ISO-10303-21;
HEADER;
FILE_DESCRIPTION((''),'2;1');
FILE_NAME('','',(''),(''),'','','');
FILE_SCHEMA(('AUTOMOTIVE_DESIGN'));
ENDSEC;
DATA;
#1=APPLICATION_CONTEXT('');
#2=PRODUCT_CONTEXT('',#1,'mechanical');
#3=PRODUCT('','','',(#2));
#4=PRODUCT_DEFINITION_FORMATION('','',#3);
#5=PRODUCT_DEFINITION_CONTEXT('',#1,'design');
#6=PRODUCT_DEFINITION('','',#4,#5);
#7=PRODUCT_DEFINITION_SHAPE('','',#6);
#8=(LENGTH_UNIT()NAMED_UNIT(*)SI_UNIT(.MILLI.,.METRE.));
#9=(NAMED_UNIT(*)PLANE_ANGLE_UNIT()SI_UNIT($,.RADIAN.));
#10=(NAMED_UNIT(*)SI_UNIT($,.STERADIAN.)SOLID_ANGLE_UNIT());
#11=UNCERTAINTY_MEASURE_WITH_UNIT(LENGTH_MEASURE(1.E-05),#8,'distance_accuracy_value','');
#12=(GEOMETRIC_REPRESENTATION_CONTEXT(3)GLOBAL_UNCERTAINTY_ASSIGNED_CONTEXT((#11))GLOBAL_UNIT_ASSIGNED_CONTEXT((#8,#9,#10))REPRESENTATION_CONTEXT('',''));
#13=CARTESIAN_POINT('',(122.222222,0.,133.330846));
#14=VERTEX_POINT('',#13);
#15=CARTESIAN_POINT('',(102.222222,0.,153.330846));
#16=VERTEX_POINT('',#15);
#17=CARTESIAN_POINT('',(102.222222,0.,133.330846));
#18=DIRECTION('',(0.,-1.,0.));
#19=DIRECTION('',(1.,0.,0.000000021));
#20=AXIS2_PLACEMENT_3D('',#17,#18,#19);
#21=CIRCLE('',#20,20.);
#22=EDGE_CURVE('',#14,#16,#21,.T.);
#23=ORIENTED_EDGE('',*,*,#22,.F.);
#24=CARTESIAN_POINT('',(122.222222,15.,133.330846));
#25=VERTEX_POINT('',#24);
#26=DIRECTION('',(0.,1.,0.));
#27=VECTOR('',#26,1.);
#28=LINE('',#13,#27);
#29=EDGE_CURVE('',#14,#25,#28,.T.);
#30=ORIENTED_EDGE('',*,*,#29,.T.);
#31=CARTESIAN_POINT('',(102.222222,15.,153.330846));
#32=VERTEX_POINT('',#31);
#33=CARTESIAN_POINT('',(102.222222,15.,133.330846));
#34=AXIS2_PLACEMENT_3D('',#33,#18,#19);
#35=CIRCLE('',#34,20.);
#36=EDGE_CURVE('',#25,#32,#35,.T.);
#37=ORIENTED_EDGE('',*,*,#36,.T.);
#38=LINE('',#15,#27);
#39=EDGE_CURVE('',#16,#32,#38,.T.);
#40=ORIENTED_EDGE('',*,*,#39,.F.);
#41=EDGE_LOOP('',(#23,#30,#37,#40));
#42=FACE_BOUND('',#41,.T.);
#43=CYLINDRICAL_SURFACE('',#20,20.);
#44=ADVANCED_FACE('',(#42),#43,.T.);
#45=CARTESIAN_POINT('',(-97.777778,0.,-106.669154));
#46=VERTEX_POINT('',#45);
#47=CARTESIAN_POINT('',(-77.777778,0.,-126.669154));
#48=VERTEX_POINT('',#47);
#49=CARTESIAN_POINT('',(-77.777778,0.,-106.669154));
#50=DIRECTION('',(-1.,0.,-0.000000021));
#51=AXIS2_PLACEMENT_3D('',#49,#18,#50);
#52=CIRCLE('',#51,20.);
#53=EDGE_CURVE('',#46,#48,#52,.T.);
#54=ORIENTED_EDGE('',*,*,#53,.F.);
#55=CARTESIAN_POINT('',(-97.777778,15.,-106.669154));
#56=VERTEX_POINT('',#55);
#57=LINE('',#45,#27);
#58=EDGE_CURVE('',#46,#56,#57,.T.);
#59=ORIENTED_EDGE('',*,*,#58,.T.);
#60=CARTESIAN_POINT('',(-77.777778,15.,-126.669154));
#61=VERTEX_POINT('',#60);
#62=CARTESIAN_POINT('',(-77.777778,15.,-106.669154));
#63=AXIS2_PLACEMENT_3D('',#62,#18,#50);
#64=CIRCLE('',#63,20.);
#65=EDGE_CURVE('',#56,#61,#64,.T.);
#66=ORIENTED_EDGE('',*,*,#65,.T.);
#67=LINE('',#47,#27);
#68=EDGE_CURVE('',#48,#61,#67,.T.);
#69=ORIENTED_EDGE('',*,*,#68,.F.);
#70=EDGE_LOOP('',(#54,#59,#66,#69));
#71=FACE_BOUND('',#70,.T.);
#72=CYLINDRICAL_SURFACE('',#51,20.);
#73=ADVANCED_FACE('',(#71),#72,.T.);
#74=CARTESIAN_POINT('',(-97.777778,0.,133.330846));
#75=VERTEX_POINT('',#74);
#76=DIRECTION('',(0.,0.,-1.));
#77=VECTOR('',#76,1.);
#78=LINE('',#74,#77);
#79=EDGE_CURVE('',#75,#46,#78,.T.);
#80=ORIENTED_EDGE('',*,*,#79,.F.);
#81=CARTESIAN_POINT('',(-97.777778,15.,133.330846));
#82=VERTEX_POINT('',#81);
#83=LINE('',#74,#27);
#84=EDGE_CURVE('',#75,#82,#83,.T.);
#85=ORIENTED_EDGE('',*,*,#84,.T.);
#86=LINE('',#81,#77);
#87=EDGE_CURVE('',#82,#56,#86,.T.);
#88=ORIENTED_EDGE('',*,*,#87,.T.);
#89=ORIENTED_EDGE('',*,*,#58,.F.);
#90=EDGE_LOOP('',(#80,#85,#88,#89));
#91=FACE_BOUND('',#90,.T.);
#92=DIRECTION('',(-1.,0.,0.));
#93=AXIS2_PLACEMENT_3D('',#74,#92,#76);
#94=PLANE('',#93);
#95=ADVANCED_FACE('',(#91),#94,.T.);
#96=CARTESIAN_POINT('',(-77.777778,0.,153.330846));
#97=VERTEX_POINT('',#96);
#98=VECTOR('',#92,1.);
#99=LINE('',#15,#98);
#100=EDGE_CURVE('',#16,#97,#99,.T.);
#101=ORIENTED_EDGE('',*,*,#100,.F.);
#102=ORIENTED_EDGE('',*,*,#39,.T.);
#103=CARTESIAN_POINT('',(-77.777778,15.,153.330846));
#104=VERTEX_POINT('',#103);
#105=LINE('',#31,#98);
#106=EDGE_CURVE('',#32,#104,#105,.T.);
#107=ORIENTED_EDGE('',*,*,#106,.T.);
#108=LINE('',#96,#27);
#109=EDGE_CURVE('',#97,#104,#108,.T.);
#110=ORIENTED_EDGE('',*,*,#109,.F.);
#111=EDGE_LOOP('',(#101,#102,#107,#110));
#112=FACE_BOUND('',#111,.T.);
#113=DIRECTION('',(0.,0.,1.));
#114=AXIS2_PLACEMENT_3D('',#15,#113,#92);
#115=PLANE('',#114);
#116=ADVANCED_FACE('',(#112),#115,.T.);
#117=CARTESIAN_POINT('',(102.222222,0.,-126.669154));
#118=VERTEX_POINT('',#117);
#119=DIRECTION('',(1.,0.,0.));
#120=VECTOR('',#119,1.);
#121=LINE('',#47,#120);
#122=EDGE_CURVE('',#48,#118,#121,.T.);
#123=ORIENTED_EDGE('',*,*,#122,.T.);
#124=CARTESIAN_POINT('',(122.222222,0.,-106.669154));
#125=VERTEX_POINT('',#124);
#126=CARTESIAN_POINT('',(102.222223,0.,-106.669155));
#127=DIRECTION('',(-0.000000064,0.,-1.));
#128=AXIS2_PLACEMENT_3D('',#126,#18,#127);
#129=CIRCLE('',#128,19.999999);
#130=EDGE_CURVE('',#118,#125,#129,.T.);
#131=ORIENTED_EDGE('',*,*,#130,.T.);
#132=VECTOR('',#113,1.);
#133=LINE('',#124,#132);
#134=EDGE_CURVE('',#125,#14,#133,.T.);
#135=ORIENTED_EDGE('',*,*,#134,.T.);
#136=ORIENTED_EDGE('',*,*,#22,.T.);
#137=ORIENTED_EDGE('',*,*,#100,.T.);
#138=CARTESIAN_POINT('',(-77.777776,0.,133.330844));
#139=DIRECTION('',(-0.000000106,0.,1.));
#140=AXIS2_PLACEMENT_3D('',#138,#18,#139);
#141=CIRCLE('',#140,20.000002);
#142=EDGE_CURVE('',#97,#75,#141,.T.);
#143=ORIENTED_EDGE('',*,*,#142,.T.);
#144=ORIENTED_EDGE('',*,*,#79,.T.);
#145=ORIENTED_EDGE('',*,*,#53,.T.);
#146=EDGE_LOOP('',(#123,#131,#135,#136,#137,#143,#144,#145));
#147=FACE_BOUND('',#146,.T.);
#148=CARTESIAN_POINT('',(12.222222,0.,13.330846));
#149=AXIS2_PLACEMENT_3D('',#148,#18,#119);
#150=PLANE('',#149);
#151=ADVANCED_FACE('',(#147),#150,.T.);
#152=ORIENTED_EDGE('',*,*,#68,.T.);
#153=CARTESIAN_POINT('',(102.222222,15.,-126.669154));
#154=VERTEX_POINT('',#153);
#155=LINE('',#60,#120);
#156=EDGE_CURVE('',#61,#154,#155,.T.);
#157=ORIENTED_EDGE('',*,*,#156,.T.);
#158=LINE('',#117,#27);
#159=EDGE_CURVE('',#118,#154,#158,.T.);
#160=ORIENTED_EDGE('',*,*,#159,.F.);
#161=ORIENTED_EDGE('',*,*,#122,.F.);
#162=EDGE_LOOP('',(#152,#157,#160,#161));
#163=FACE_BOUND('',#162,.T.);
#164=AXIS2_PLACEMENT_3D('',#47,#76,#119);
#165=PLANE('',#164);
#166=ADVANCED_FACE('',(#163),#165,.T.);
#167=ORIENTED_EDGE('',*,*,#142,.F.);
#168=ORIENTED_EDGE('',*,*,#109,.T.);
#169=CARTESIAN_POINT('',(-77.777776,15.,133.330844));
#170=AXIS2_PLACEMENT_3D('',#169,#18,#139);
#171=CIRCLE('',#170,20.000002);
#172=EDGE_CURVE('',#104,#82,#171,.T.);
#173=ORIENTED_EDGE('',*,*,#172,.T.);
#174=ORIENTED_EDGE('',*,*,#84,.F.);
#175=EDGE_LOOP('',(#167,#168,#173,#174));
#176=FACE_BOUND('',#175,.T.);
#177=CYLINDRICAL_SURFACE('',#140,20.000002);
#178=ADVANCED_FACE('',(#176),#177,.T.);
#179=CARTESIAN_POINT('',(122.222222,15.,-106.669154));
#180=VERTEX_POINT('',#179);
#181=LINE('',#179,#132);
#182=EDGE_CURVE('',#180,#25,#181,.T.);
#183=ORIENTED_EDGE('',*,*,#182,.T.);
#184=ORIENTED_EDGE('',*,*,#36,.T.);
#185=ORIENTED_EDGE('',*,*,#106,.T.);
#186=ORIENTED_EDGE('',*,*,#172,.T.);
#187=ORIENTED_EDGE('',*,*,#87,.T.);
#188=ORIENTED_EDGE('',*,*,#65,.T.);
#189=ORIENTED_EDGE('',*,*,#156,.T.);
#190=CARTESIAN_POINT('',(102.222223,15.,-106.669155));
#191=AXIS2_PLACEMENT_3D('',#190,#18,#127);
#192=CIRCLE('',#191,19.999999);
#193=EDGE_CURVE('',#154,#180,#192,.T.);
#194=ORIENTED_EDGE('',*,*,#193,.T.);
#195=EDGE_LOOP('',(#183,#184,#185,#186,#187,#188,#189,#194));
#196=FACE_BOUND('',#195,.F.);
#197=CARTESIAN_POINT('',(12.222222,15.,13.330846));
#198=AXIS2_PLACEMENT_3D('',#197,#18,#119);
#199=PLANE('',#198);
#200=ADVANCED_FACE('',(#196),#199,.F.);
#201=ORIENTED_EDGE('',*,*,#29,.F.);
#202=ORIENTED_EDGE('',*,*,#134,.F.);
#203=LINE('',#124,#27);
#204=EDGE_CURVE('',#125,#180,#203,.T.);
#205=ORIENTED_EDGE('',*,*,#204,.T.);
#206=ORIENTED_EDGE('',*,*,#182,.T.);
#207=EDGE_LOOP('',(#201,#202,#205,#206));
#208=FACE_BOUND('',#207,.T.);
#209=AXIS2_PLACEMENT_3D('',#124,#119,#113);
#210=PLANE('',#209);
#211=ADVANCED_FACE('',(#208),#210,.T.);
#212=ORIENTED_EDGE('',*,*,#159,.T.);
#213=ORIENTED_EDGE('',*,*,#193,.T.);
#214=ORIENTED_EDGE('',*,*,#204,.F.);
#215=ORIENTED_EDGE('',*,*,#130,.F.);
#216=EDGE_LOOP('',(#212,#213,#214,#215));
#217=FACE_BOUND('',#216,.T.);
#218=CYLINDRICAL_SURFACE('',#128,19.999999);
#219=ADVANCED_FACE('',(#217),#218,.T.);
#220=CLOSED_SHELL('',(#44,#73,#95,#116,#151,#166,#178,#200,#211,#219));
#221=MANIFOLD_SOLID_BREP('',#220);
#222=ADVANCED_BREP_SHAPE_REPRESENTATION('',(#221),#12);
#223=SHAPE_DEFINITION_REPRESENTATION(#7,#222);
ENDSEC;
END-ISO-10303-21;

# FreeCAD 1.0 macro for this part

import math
import FreeCAD as App
import Part
import Sketcher

doc = App.newDocument("Part")
body = doc.addObject("PartDesign::Body", "Body")

sketch1 = body.newObject("Sketcher::SketchObject", "Sketch")
sketch1.AttachmentSupport = (doc.getObject("XZ_Plane"), [""])
sketch1.MapMode = "FlatFace"
sketch1.addGeometry(Part.ArcOfCircle(Part.Circle(App.Vector(102.222222, 133.330846, 0), App.Vector(0, 0, 1), 20), math.radians(0.000001), math.radians(89.999999)), False)
sketch1.addGeometry(Part.LineSegment(App.Vector(102.222222, 153.330846, 0), App.Vector(-77.777778, 153.330846, 0)), False)
sketch1.addGeometry(Part.ArcOfCircle(Part.Circle(App.Vector(-77.777776, 133.330844, 0), App.Vector(0, 0, 1), 20.000002), math.radians(90.000006), math.radians(179.999994)), False)
sketch1.addGeometry(Part.LineSegment(App.Vector(-97.777778, 133.330846, 0), App.Vector(-97.777778, -106.669154, 0)), False)
sketch1.addGeometry(Part.ArcOfCircle(Part.Circle(App.Vector(-77.777778, -106.669154, 0), App.Vector(0, 0, 1), 20), math.radians(-179.999999), math.radians(-90.000001)), False)
sketch1.addGeometry(Part.LineSegment(App.Vector(-77.777778, -126.669154, 0), App.Vector(102.222222, -126.669154, 0)), False)
sketch1.addGeometry(Part.ArcOfCircle(Part.Circle(App.Vector(102.222223, -106.669155, 0), App.Vector(0, 0, 1), 19.999999), math.radians(-90.000004), math.radians(0.000004)), False)
sketch1.addGeometry(Part.LineSegment(App.Vector(122.222222, -106.669154, 0), App.Vector(122.222222, 133.330846, 0)), False)
sketch1.addConstraint(Sketcher.Constraint("Tangent", 0, 2, 1, 1))
sketch1.addConstraint(Sketcher.Constraint("Tangent", 1, 2, 2, 1))
sketch1.addConstraint(Sketcher.Constraint("Tangent", 2, 2, 3, 1))
sketch1.addConstraint(Sketcher.Constraint("Tangent", 3, 2, 4, 1))
sketch1.addConstraint(Sketcher.Constraint("Tangent", 4, 2, 5, 1))
sketch1.addConstraint(Sketcher.Constraint("Tangent", 5, 2, 6, 1))
sketch1.addConstraint(Sketcher.Constraint("Tangent", 6, 2, 7, 1))
sketch1.addConstraint(Sketcher.Constraint("Tangent", 7, 2, 0, 1))
sketch1.addConstraint(Sketcher.Constraint("Horizontal", 1))
sketch1.addConstraint(Sketcher.Constraint("Vertical", 3))
sketch1.addConstraint(Sketcher.Constraint("Horizontal", 5))
sketch1.addConstraint(Sketcher.Constraint("Vertical", 7))
sketch1.addConstraint(Sketcher.Constraint("Equal", 0, 2))
sketch1.addConstraint(Sketcher.Constraint("Equal", 2, 4))
sketch1.addConstraint(Sketcher.Constraint("Equal", 4, 6))
sketch1.addConstraint(Sketcher.Constraint("Radius", 0, 20.0))
sketch1.addConstraint(Sketcher.Constraint("DistanceX", 1, 2, 1, 1, 180.0))
sketch1.addConstraint(Sketcher.Constraint("DistanceY", 3, 2, 3, 1, 240.0))
sketch1.addConstraint(Sketcher.Constraint("DistanceX", -1, 1, 0, 3, 102.222222))
sketch1.addConstraint(Sketcher.Constraint("DistanceY", -1, 1, 0, 3, 133.330846))
pad1 = body.newObject("PartDesign::Pad", "Pad")
pad1.Profile = sketch1
pad1.Length = 15
pad1.Reversed = True

doc.recompute()
